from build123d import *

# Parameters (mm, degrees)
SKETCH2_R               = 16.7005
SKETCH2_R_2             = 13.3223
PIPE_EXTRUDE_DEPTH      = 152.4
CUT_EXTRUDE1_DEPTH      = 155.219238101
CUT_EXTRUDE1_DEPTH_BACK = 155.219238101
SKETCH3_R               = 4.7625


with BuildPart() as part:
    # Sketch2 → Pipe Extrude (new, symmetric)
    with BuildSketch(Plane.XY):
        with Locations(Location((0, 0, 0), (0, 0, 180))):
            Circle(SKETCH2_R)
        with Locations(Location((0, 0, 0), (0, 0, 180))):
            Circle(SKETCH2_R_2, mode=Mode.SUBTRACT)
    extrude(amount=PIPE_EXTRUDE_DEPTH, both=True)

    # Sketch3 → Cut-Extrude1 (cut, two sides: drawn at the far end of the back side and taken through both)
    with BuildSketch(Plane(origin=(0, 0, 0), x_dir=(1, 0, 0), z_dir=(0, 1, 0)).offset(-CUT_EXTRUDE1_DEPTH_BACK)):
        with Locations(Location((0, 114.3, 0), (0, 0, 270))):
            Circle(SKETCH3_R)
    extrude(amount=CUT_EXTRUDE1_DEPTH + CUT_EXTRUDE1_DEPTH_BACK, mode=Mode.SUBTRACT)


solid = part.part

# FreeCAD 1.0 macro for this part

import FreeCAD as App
import Part
import Sketcher
Q = App.Units.Quantity

doc = App.newDocument("Part")
body = doc.addObject("PartDesign::Body", "Body")

sketch1 = body.newObject("Sketcher::SketchObject", "Sketch")
sketch1.AttachmentSupport = (doc.getObject("XY_Plane"), [""])
sketch1.MapMode = "FlatFace"
sketch1.addGeometry([
    Part.Circle(App.Vector(0, 0, 0), App.Vector(0, 0, 1), 17),
    Part.Circle(App.Vector(0, 0, 0), App.Vector(0, 0, 1), 13),
], False)
sketch1.addConstraint([
    Sketcher.Constraint("Coincident", 0, 3, -1, 1),
    Sketcher.Constraint("Coincident", 1, 3, -1, 1),
    Sketcher.Constraint("Diameter", 0, Q("1.315 in")),
    Sketcher.Constraint("Diameter", 1, Q("1.049 in")),
])
pad1 = body.newObject("PartDesign::Pad", "Pad")
pad1.Profile = sketch1
pad1.Length = Q("12 in")
pad1.Midplane = True

sketch2 = body.newObject("Sketcher::SketchObject", "Sketch001")
sketch2.AttachmentSupport = (doc.getObject("XZ_Plane"), [""])
sketch2.MapMode = "FlatFace"
sketch2.addGeometry(Part.Circle(App.Vector(0, -114.3, 0), App.Vector(0, 0, 1), 4.8), False)
sketch2.addConstraint([
    Sketcher.Constraint("PointOnObject", 0, 3, -2),
    Sketcher.Constraint("Diameter", 0, Q("0.375 in")),
    Sketcher.Constraint("DistanceY", 0, 3, -1, 1, Q("4.5 in")),
])
pocket1 = body.newObject("PartDesign::Pocket", "Pocket")
pocket1.Profile = sketch2
pocket1.Type = "ThroughAll"
pocket1.Midplane = True

doc.recompute()
